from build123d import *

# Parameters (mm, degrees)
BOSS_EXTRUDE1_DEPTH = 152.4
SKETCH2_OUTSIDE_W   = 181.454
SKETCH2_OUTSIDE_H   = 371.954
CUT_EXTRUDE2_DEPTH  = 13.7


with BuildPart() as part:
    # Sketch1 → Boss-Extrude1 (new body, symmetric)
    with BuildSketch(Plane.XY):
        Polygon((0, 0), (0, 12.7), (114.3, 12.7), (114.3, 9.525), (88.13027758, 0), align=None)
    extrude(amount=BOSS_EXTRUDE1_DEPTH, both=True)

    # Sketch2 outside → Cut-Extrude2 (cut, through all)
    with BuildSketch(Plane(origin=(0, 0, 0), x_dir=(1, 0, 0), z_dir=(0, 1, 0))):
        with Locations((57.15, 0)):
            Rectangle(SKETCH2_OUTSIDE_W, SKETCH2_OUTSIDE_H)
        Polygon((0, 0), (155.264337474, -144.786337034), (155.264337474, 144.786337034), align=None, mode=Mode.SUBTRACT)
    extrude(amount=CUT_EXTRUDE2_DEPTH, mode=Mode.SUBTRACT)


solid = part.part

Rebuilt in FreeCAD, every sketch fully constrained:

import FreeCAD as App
import Part
import Sketcher
Q = App.Units.Quantity


def add_polygon(sketch, points):
    """Adds a closed chain of lines whose ends are joined by coincident constraints."""
    first, n = sketch.GeometryCount, len(points)
    for a, b in zip(points, points[1:] + points[:1]):
        sketch.addGeometry(Part.LineSegment(App.Vector(*a, 0), App.Vector(*b, 0)), False)
    for i in range(n):
        sketch.addConstraint(Sketcher.Constraint("Coincident", first + i, 2, first + (i + 1) % n, 1))

doc = App.newDocument("Part")
body = doc.addObject("PartDesign::Body", "Body")

# Sketch on XY plane
sketch1 = body.newObject("Sketcher::SketchObject", "Sketch")
sketch1.AttachmentSupport = (doc.getObject("XY_Plane"), [""])
sketch1.MapMode = "FlatFace"
add_polygon(sketch1, [(0, 12.7), (0, 0), (88.130278, 0), (114.3, 9.525), (114.3, 12.7)])  # lines 0-4
sketch1.addConstraint(Sketcher.Constraint("Vertical", 0))
sketch1.addConstraint(Sketcher.Constraint("Horizontal", 1))
sketch1.addConstraint(Sketcher.Constraint("Vertical", 3))
sketch1.addConstraint(Sketcher.Constraint("Horizontal", 4))
sketch1.addConstraint(Sketcher.Constraint("Coincident", 0, 2, -1, 1))
sketch1.addConstraint(Sketcher.Constraint("DistanceX", 4, 2, 4, 1, Q("4.5 in")))
sketch1.addConstraint(Sketcher.Constraint("DistanceY", 0, 2, 0, 1, Q("0.5 in")))
sketch1.addConstraint(Sketcher.Constraint("Angle", 2, Q("20 deg")))
sketch1.addConstraint(Sketcher.Constraint("DistanceY", 3, 1, 3, 2, Q("0.125 in")))
pad1 = body.newObject("PartDesign::Pad", "Pad")
pad1.Profile = sketch1
pad1.Length = Q("12 in")
pad1.Midplane = True

# Sketch on XZ plane
sketch2 = body.newObject("Sketcher::SketchObject", "Sketch001")
sketch2.AttachmentSupport = (doc.getObject("XZ_Plane"), [""])
sketch2.MapMode = "FlatFace"
add_polygon(sketch2, [(-33.577, -185.977), (-33.577, 185.977), (147.877, 185.977), (147.877, 137.897533), (0, 0), (147.877, -137.897533), (147.877, -185.977)])  # lines 0-6
sketch2.addConstraint(Sketcher.Constraint("Vertical", 0))
sketch2.addConstraint(Sketcher.Constraint("Horizontal", 1))
sketch2.addConstraint(Sketcher.Constraint("Vertical", 2))
sketch2.addConstraint(Sketcher.Constraint("Vertical", 5))
sketch2.addConstraint(Sketcher.Constraint("Horizontal", 6))
sketch2.addConstraint(Sketcher.Constraint("Coincident", 3, 2, -1, 1))
sketch2.addConstraint(Sketcher.Constraint("Symmetric", 2, 2, 4, 2, -1))
sketch2.addConstraint(Sketcher.Constraint("Equal", 2, 5))
sketch2.addConstraint(Sketcher.Constraint("Angle", 3, Q("-137 deg")))
sketch2.addConstraint(Sketcher.Constraint("DistanceX", 1, 1, 1, 2, Q("181.454 mm")))
sketch2.addConstraint(Sketcher.Constraint("DistanceY", 0, 1, 0, 2, Q("371.954 mm")))
sketch2.addConstraint(Sketcher.Constraint("DistanceX", 0, 2, -1, 1, Q("33.577 mm")))
pocket1 = body.newObject("PartDesign::Pocket", "Pocket")
pocket1.Profile = sketch2
pocket1.Type = "ThroughAll"

doc.recompute()
